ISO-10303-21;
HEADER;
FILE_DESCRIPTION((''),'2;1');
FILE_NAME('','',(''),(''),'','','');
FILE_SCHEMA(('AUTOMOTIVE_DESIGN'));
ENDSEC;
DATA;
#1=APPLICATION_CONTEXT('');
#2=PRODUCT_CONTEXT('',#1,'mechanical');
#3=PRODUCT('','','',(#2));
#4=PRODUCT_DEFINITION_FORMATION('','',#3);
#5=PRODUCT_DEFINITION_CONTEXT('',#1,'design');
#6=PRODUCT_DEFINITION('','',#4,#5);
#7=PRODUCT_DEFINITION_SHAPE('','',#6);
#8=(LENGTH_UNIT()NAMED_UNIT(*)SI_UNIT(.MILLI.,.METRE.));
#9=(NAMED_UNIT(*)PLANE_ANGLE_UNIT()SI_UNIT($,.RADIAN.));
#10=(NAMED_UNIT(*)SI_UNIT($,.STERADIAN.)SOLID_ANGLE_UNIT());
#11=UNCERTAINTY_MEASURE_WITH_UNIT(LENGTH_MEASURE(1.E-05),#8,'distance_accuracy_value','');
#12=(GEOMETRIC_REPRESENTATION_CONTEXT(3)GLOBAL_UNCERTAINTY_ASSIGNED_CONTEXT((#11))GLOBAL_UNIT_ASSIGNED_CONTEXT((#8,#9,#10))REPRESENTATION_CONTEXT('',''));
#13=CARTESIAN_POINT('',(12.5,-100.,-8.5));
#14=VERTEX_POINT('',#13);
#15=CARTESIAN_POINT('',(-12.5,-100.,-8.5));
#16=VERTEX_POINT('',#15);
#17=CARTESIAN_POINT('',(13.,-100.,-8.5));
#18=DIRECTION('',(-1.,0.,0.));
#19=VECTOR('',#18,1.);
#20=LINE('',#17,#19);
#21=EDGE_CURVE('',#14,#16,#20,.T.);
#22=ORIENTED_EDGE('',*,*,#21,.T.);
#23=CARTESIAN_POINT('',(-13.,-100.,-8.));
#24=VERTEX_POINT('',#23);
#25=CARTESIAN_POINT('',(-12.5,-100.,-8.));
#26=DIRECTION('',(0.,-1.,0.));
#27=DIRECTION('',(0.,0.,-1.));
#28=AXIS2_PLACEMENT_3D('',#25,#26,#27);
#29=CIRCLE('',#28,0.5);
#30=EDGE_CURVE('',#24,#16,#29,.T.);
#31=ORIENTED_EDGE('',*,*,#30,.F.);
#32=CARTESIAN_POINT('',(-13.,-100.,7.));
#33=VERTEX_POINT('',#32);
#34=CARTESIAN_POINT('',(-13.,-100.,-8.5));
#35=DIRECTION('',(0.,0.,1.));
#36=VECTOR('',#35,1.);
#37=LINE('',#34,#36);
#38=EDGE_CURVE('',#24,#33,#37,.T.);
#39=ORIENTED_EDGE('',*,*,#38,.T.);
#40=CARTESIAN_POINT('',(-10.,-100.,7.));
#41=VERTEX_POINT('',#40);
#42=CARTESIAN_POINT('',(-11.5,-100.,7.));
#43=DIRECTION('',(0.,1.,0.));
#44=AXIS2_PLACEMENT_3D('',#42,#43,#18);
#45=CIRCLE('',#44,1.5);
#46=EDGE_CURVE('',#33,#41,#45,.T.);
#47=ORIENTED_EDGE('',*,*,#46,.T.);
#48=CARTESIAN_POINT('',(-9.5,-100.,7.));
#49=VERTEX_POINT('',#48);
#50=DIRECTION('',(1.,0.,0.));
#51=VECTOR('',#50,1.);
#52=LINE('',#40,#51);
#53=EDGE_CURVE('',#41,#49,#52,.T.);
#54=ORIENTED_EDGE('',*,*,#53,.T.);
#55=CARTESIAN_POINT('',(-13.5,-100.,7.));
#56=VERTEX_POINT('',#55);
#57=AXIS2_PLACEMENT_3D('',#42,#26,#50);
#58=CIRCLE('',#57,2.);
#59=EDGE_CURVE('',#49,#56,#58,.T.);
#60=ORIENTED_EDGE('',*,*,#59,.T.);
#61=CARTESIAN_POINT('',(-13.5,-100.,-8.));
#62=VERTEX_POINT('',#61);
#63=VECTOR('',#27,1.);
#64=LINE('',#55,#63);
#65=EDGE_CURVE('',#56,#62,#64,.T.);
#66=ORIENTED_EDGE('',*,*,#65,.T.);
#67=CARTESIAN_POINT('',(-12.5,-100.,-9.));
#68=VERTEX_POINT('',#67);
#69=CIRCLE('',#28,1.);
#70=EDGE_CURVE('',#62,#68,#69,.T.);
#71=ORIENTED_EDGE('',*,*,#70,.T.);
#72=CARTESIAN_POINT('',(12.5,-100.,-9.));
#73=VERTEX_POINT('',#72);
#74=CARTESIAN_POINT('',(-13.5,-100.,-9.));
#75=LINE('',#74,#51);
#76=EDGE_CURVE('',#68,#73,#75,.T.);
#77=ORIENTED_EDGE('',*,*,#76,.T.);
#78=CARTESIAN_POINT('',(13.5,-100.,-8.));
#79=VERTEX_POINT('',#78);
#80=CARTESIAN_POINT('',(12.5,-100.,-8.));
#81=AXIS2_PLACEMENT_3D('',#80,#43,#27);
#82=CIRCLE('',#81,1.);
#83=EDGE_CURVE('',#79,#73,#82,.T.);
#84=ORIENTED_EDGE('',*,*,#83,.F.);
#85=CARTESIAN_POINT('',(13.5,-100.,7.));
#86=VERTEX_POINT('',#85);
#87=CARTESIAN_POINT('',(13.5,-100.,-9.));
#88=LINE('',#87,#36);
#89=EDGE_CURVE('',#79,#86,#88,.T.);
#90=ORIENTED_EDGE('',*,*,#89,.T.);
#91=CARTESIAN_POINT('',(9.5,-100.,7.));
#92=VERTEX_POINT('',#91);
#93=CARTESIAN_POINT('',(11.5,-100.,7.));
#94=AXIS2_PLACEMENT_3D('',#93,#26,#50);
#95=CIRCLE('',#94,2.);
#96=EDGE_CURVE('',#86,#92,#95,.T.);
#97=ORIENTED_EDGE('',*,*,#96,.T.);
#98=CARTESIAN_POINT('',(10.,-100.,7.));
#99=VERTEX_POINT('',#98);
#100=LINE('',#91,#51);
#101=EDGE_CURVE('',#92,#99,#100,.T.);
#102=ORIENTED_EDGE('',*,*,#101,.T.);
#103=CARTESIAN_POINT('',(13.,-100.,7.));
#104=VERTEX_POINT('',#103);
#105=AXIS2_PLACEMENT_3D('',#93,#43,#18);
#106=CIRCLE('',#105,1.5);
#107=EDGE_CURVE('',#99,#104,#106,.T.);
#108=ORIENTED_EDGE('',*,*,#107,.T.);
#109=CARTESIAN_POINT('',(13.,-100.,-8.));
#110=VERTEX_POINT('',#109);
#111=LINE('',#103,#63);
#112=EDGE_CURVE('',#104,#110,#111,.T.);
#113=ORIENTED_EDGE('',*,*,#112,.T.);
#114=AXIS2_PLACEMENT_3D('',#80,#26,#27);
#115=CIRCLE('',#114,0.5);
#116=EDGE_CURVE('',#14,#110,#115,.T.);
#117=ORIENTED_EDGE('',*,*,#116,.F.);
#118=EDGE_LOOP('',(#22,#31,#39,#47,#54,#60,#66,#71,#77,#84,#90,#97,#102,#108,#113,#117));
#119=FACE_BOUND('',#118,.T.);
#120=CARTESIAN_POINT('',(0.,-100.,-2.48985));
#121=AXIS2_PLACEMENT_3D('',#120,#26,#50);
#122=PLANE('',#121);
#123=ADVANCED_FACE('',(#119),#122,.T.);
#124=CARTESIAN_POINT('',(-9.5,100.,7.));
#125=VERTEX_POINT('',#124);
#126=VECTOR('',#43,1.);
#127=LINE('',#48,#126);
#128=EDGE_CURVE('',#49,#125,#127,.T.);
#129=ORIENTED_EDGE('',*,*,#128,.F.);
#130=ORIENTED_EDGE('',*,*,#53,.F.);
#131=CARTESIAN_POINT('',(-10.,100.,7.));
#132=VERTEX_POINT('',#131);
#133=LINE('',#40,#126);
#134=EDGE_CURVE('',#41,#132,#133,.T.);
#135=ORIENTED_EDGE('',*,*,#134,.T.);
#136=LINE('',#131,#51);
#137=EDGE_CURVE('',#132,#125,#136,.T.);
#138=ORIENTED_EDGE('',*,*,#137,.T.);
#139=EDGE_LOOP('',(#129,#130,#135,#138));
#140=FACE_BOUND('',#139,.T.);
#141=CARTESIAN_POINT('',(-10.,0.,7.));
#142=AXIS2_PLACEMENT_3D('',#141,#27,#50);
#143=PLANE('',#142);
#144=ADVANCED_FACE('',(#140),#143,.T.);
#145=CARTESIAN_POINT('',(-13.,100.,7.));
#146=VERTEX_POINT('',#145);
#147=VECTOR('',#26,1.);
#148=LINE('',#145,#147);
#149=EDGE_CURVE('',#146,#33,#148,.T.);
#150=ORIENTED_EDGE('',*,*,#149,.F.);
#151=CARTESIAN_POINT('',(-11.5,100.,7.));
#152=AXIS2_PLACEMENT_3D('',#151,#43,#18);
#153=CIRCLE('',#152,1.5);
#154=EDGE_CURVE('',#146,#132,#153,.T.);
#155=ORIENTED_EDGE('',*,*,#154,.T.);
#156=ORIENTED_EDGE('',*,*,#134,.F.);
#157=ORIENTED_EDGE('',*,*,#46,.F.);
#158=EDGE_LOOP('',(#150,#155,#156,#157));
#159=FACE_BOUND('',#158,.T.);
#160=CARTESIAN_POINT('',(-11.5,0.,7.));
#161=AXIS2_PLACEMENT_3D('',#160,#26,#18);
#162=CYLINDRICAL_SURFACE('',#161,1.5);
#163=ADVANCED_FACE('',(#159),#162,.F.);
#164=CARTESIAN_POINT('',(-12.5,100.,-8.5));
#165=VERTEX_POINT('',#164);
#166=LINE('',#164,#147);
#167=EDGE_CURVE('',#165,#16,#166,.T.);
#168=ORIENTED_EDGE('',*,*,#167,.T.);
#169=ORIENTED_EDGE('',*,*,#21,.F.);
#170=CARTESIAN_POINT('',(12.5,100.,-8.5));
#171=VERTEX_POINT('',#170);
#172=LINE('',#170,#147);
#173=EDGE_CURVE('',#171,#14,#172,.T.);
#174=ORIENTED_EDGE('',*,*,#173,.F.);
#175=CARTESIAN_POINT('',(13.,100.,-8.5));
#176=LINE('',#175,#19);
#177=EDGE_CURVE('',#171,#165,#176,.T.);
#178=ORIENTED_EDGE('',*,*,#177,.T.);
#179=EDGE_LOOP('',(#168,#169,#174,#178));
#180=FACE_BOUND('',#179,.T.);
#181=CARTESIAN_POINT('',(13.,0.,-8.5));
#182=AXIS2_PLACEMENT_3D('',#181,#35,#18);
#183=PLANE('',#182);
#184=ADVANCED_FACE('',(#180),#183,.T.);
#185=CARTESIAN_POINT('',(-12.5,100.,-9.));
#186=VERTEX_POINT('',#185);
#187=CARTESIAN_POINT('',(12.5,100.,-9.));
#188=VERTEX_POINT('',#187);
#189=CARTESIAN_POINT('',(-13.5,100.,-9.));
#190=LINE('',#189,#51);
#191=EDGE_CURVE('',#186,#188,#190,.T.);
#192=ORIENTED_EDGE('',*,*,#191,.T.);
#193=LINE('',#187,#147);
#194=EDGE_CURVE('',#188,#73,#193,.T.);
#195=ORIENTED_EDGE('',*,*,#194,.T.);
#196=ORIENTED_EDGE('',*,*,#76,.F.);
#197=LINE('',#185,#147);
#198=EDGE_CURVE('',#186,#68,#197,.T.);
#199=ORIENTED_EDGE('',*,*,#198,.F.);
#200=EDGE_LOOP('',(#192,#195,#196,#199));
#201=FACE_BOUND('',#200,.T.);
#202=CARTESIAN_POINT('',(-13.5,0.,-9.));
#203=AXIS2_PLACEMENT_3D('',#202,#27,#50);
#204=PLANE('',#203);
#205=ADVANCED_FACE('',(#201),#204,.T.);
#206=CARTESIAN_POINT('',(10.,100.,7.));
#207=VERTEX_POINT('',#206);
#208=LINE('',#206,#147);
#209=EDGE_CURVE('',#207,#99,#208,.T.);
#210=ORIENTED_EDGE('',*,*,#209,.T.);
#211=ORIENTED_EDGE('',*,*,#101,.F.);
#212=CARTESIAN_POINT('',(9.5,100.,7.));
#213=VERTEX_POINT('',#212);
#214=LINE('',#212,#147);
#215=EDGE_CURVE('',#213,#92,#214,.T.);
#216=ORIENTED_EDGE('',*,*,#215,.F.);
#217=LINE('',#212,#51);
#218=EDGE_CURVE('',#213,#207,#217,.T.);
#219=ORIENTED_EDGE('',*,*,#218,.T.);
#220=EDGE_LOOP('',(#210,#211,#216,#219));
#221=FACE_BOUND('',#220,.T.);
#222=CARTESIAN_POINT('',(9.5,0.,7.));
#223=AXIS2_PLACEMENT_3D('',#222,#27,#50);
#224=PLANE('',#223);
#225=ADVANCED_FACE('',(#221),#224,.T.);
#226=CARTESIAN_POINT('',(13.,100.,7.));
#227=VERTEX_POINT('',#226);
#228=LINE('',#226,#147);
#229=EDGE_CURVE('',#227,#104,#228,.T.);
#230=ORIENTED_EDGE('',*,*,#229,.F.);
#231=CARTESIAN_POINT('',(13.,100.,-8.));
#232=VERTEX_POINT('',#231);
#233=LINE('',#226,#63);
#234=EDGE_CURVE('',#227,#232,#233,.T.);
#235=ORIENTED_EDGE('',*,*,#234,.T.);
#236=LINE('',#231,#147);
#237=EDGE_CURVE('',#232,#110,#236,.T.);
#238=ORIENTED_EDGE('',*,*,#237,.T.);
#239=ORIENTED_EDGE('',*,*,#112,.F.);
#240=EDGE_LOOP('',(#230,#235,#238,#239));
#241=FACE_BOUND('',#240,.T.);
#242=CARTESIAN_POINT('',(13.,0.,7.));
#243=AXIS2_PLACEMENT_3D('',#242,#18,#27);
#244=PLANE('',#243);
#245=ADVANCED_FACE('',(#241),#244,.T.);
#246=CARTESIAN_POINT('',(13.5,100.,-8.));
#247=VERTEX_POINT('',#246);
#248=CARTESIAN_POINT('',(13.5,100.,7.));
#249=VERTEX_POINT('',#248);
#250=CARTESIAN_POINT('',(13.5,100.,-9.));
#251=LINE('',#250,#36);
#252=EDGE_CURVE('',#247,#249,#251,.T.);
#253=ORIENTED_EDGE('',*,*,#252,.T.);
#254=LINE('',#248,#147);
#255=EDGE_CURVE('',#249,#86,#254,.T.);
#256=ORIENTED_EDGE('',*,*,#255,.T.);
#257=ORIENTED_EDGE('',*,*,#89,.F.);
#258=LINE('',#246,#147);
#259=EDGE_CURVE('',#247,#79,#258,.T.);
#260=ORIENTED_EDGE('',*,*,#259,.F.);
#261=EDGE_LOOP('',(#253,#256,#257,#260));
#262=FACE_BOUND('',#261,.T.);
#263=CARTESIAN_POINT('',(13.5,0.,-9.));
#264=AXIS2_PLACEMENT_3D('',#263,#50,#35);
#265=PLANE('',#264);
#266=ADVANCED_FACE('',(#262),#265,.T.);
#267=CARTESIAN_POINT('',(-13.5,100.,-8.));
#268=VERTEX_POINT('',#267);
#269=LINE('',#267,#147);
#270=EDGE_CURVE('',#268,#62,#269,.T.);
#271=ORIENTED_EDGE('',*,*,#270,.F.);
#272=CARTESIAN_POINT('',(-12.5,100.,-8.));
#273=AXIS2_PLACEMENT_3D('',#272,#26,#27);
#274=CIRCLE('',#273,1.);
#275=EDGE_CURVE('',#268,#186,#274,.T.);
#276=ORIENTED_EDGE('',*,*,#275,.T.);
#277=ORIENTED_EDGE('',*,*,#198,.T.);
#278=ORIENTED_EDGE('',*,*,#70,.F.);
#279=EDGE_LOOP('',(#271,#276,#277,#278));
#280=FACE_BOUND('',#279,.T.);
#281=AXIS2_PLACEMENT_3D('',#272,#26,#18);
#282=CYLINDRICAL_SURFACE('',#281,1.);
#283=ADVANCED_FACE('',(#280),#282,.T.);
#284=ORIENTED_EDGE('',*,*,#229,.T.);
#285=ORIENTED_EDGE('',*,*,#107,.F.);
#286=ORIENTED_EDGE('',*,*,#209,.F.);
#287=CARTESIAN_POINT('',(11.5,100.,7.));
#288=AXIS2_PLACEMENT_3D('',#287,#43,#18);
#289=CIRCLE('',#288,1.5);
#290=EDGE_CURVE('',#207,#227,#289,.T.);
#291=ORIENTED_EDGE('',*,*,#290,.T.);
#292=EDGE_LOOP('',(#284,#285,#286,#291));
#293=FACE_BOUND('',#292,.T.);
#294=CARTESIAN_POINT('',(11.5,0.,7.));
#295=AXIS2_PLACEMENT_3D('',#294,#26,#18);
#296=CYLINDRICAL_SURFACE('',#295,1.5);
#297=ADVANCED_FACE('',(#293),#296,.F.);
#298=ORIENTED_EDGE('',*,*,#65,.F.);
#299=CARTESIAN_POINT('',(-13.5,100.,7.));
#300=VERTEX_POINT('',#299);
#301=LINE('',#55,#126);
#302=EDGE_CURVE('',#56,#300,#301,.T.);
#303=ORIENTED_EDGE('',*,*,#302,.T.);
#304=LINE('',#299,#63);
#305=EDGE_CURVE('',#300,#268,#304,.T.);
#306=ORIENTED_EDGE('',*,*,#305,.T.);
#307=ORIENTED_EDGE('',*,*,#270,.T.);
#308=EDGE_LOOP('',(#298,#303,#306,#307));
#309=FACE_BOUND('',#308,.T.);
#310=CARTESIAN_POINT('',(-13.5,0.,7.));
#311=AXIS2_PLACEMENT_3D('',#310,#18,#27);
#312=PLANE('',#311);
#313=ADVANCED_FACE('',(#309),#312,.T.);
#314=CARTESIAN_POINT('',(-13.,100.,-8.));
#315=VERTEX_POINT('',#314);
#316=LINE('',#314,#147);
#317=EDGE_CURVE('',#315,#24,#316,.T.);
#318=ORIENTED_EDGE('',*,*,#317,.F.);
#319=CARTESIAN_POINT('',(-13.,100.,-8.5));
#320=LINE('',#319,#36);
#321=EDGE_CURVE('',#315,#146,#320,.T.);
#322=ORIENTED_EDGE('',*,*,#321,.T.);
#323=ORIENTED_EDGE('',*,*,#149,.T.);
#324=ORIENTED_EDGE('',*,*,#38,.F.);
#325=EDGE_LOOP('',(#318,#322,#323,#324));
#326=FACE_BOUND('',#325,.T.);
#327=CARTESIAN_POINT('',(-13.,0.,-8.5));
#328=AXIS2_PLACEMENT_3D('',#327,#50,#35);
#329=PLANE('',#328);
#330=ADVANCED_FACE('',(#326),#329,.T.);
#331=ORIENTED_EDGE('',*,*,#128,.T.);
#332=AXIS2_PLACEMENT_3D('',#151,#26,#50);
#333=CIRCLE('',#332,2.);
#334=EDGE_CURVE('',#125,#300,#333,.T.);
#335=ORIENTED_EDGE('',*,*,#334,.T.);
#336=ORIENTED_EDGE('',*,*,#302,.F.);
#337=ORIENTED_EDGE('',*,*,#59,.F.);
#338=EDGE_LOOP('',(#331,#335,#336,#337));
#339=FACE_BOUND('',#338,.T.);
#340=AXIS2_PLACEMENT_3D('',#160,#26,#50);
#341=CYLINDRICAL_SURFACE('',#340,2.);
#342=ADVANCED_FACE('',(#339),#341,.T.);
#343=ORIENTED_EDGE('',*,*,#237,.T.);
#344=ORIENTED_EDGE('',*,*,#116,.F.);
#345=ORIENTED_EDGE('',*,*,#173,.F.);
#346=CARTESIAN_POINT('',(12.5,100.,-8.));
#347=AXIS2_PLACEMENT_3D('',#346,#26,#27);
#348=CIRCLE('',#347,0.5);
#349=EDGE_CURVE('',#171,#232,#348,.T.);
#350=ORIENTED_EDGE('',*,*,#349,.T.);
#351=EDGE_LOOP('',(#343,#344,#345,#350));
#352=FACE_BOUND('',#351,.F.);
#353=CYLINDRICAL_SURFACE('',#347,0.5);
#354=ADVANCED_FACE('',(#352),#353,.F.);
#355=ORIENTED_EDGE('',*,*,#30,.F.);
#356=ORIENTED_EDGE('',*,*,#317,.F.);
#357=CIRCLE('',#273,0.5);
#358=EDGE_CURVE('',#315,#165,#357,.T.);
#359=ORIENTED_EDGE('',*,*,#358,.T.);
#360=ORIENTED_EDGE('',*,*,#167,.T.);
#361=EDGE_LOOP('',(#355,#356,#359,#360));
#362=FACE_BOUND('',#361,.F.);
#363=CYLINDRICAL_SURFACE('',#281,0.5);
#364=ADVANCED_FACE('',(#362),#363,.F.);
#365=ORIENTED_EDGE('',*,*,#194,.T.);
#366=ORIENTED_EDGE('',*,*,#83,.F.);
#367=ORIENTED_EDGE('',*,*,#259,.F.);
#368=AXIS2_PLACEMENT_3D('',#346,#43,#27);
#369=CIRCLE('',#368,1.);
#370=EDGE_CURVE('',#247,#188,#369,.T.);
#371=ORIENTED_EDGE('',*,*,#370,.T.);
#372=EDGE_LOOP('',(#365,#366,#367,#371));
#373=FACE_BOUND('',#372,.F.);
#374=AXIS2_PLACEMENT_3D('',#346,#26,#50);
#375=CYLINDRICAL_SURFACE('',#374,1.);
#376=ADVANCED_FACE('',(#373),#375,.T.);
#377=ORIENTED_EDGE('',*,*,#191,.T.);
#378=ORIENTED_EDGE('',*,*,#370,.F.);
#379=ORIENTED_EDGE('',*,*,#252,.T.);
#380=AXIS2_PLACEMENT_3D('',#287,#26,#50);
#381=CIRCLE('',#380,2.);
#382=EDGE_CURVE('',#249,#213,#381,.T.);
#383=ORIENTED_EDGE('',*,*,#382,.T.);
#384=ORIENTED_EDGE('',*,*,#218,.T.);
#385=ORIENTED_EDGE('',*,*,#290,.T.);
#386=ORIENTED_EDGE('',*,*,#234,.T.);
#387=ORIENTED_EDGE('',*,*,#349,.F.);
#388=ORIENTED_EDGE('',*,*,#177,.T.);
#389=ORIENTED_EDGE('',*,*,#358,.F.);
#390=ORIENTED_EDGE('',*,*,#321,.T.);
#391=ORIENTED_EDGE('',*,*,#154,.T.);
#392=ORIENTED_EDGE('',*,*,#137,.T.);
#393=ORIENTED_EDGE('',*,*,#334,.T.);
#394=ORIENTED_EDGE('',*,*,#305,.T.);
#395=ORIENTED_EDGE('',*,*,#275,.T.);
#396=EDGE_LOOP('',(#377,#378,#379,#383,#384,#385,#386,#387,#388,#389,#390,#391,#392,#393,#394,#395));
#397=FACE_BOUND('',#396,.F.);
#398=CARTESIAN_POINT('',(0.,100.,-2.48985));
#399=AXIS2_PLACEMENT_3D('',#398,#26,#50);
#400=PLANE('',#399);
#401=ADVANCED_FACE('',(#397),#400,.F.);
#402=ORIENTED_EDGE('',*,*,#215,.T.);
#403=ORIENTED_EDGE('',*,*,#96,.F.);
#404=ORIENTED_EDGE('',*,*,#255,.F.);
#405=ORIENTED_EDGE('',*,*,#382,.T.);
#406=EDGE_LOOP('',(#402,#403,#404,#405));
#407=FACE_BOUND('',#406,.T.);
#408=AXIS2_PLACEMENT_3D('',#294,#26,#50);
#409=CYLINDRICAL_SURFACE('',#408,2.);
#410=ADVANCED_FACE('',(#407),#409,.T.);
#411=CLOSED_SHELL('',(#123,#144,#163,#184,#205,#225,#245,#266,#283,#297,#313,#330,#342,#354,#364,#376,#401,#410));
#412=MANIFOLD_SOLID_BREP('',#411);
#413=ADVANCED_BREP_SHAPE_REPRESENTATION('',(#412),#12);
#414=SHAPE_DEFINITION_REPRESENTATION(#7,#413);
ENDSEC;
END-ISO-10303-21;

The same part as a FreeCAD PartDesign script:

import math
import FreeCAD as App
import Part
import Sketcher
Q = App.Units.Quantity


def edges_at(feature, points):
    """Names of the edges that pass closest to the given points."""
    edges = feature.Shape.Edges
    near = lambda p: min(range(len(edges)), key=lambda i: edges[i].distToShape(Part.Vertex(*p))[0])
    return sorted({f"Edge{near(p) + 1}" for p in points})

doc = App.newDocument("Part")
body = doc.addObject("PartDesign::Body", "Body")

sketch1 = body.newObject("Sketcher::SketchObject", "Sketch")
sketch1.AttachmentSupport = (doc.getObject("XZ_Plane"), [""])
sketch1.MapMode = "FlatFace"
sketch1.addGeometry(Part.LineSegment(App.Vector(-13.5, 7, 0), App.Vector(-13.5, -9, 0)), False)
sketch1.addGeometry(Part.LineSegment(App.Vector(-13.5, -9, 0), App.Vector(13.5, -9, 0)), False)
sketch1.addGeometry(Part.LineSegment(App.Vector(13.5, -9, 0), App.Vector(13.5, 7, 0)), False)
sketch1.addGeometry(Part.ArcOfCircle(Part.Circle(App.Vector(11.5, 7, 0), App.Vector(0, 0, 1), 2), math.radians(0), math.radians(180)), False)
sketch1.addGeometry(Part.LineSegment(App.Vector(9.5, 7, 0), App.Vector(10, 7, 0)), False)
sketch1.addGeometry(Part.ArcOfCircle(Part.Circle(App.Vector(11.5, 7, 0), App.Vector(0, 0, 1), 1.5), math.radians(0), math.radians(180)), False)
sketch1.addGeometry(Part.LineSegment(App.Vector(13, 7, 0), App.Vector(13, -8.5, 0)), False)
sketch1.addGeometry(Part.LineSegment(App.Vector(13, -8.5, 0), App.Vector(-13, -8.5, 0)), False)
sketch1.addGeometry(Part.LineSegment(App.Vector(-13, -8.5, 0), App.Vector(-13, 7, 0)), False)
sketch1.addGeometry(Part.ArcOfCircle(Part.Circle(App.Vector(-11.5, 7, 0), App.Vector(0, 0, 1), 1.5), math.radians(0), math.radians(180)), False)
sketch1.addGeometry(Part.LineSegment(App.Vector(-10, 7, 0), App.Vector(-9.5, 7, 0)), False)
sketch1.addGeometry(Part.ArcOfCircle(Part.Circle(App.Vector(-11.5, 7, 0), App.Vector(0, 0, 1), 2), math.radians(0), math.radians(180)), False)
sketch1.addConstraint(Sketcher.Constraint("Coincident", 0, 2, 1, 1))
sketch1.addConstraint(Sketcher.Constraint("Coincident", 1, 2, 2, 1))
sketch1.addConstraint(Sketcher.Constraint("Tangent", 2, 2, 3, 1))
sketch1.addConstraint(Sketcher.Constraint("Coincident", 3, 2, 4, 1))
sketch1.addConstraint(Sketcher.Constraint("Coincident", 4, 2, 5, 2))
sketch1.addConstraint(Sketcher.Constraint("Tangent", 5, 1, 6, 1))
sketch1.addConstraint(Sketcher.Constraint("Coincident", 6, 2, 7, 1))
sketch1.addConstraint(Sketcher.Constraint("Coincident", 7, 2, 8, 1))
sketch1.addConstraint(Sketcher.Constraint("Tangent", 8, 2, 9, 2))
sketch1.addConstraint(Sketcher.Constraint("Coincident", 9, 1, 10, 1))
sketch1.addConstraint(Sketcher.Constraint("Coincident", 10, 2, 11, 1))
sketch1.addConstraint(Sketcher.Constraint("Tangent", 11, 2, 0, 1))
sketch1.addConstraint(Sketcher.Constraint("Vertical", 0))
sketch1.addConstraint(Sketcher.Constraint("Horizontal", 1))
sketch1.addConstraint(Sketcher.Constraint("Vertical", 2))
sketch1.addConstraint(Sketcher.Constraint("Horizontal", 4))
sketch1.addConstraint(Sketcher.Constraint("Vertical", 6))
sketch1.addConstraint(Sketcher.Constraint("Horizontal", 7))
sketch1.addConstraint(Sketcher.Constraint("Vertical", 8))
sketch1.addConstraint(Sketcher.Constraint("Horizontal", 10))
sketch1.addConstraint(Sketcher.Constraint("Coincident", 5, 3, 3, 3))
sketch1.addConstraint(Sketcher.Constraint("Coincident", 11, 3, 9, 3))
sketch1.addConstraint(Sketcher.Constraint("Equal", 5, 9))
sketch1.addConstraint(Sketcher.Constraint("Equal", 3, 11))
sketch1.addConstraint(Sketcher.Constraint("Symmetric", 3, 3, 9, 3, -2))
sketch1.addConstraint(Sketcher.Constraint("Horizontal", 2, 2, 3, 2))
sketch1.addConstraint(Sketcher.Constraint("Horizontal", 8, 2, 9, 1))
sketch1.addConstraint(Sketcher.Constraint("Radius", 3, Q("2 mm")))
sketch1.addConstraint(Sketcher.Constraint("Radius", 5, Q("1.5 mm")))
sketch1.addConstraint(Sketcher.Constraint("DistanceX", 1, 1, 1, 2, Q("27 mm")))
sketch1.addConstraint(Sketcher.Constraint("DistanceY", 0, 2, 0, 1, Q("16 mm")))
sketch1.addConstraint(Sketcher.Constraint("DistanceY", 6, 2, 6, 1, Q("15.5 mm")))
sketch1.addConstraint(Sketcher.Constraint("DistanceY", -1, 1, 3, 3, Q("7 mm")))
pad1 = body.newObject("PartDesign::Pad", "Pad")
pad1.Profile = sketch1
pad1.Type = "TwoLengths"
pad1.Length = 100
pad1.Length2 = 100
doc.recompute()

fillet = body.newObject("PartDesign::Fillet", "Fillet")
fillet.Base = (pad1, edges_at(pad1, [(13.5, 0, -9), (-13.5, 0, -9)]))
fillet.Radius = 1
doc.recompute()

fillet2 = body.newObject("PartDesign::Fillet", "Fillet001")
fillet2.Base = (fillet, edges_at(fillet, [(-13, 0, -8.5), (13, 0, -8.5)]))
fillet2.Radius = 0.5

doc.recompute()
